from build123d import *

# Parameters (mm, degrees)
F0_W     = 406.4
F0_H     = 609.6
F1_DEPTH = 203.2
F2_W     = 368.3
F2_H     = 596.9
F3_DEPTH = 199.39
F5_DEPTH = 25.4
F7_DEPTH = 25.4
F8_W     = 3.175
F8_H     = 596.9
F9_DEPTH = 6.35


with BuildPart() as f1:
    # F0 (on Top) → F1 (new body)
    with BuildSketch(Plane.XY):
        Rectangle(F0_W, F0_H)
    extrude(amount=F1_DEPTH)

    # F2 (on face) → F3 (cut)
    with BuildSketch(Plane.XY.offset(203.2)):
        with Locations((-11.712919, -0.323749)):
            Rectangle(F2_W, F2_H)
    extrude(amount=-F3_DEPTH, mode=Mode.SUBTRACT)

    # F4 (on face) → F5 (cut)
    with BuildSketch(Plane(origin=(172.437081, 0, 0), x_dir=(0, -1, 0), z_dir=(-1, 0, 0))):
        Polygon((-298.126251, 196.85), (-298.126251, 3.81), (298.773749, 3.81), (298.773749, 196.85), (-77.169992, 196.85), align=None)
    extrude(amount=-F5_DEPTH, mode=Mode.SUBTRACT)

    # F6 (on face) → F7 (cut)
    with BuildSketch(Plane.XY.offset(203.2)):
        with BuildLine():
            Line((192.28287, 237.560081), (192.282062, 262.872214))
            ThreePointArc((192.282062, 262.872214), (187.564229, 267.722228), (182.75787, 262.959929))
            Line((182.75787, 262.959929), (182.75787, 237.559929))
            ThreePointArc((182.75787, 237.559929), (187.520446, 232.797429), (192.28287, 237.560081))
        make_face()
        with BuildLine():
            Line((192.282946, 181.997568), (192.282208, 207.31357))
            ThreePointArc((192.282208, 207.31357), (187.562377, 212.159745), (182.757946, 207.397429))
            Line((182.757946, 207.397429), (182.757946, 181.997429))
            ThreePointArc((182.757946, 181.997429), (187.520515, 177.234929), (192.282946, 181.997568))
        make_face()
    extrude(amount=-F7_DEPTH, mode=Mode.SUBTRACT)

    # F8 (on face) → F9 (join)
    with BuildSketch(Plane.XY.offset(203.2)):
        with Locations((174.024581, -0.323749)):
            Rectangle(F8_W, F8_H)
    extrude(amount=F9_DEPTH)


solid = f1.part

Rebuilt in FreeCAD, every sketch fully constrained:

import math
import FreeCAD as App
import Part
import Sketcher
from FreeCAD import Vector
Q = App.Units.Quantity

doc = App.newDocument("Part")
body = doc.addObject("PartDesign::Body", "Body")

# Sketch on XY plane
sketch1 = body.newObject("Sketcher::SketchObject", "Sketch")
sketch1.AttachmentSupport = (doc.getObject("XY_Plane"), [""])
sketch1.MapMode = "FlatFace"
sketch1.addGeometry(Part.LineSegment(Vector(-203, 305, 0), Vector(-203, -305, 0)), False)
sketch1.addGeometry(Part.LineSegment(Vector(-203, -305, 0), Vector(203, -305, 0)), False)
sketch1.addGeometry(Part.LineSegment(Vector(203, -305, 0), Vector(203, 305, 0)), False)
sketch1.addGeometry(Part.LineSegment(Vector(203, 305, 0), Vector(-203, 305, 0)), False)
sketch1.addConstraint(Sketcher.Constraint("Coincident", 0, 2, 1, 1))
sketch1.addConstraint(Sketcher.Constraint("Coincident", 1, 2, 2, 1))
sketch1.addConstraint(Sketcher.Constraint("Coincident", 2, 2, 3, 1))
sketch1.addConstraint(Sketcher.Constraint("Coincident", 3, 2, 0, 1))
sketch1.addConstraint(Sketcher.Constraint("Vertical", 0))
sketch1.addConstraint(Sketcher.Constraint("Horizontal", 1))
sketch1.addConstraint(Sketcher.Constraint("Vertical", 2))
sketch1.addConstraint(Sketcher.Constraint("Horizontal", 3))
sketch1.addConstraint(Sketcher.Constraint("Symmetric", 0, 2, 2, 2, -1, 1))
sketch1.addConstraint(Sketcher.Constraint("DistanceX", 1, 1, 1, 2, Q("16 in")))
sketch1.addConstraint(Sketcher.Constraint("DistanceY", 0, 2, 0, 1, Q("24 in")))
pad1 = body.newObject("PartDesign::Pad", "Pad")
pad1.Profile = sketch1
pad1.Length = Q("8 in")

# Sketch on XY plane
sketch2 = body.newObject("Sketcher::SketchObject", "Sketch001")
sketch2.AttachmentSupport = (doc.getObject("XY_Plane"), [""])
sketch2.MapMode = "FlatFace"
sketch2.AttachmentOffset = App.Placement(Vector(0, 0, 8 * 25.4), App.Rotation())
sketch2.addGeometry(Part.LineSegment(Vector(-196, 298, 0), Vector(-196, -299, 0)), False)
sketch2.addGeometry(Part.LineSegment(Vector(-196, -299, 0), Vector(172, -299, 0)), False)
sketch2.addGeometry(Part.LineSegment(Vector(172, -299, 0), Vector(172, 298, 0)), False)
sketch2.addGeometry(Part.LineSegment(Vector(172, 298, 0), Vector(-196, 298, 0)), False)
sketch2.addConstraint(Sketcher.Constraint("Coincident", 0, 2, 1, 1))
sketch2.addConstraint(Sketcher.Constraint("Coincident", 1, 2, 2, 1))
sketch2.addConstraint(Sketcher.Constraint("Coincident", 2, 2, 3, 1))
sketch2.addConstraint(Sketcher.Constraint("Coincident", 3, 2, 0, 1))
sketch2.addConstraint(Sketcher.Constraint("Vertical", 0))
sketch2.addConstraint(Sketcher.Constraint("Horizontal", 1))
sketch2.addConstraint(Sketcher.Constraint("Vertical", 2))
sketch2.addConstraint(Sketcher.Constraint("Horizontal", 3))
sketch2.addConstraint(Sketcher.Constraint("DistanceX", 1, 1, 1, 2, Q("14.5 in")))
sketch2.addConstraint(Sketcher.Constraint("DistanceY", 0, 2, 0, 1, Q("23.5 in")))
sketch2.addConstraint(Sketcher.Constraint("DistanceX", 0, 2, -1, 1, 195.862919))
sketch2.addConstraint(Sketcher.Constraint("DistanceY", 0, 2, -1, 1, 298.773749))
pocket1 = body.newObject("PartDesign::Pocket", "Pocket")
pocket1.Profile = sketch2
pocket1.Length = Q("7.85 in")

# Sketch on YZ plane
sketch3 = body.newObject("Sketcher::SketchObject", "Sketch002")
sketch3.AttachmentSupport = (doc.getObject("YZ_Plane"), [""])
sketch3.MapMode = "FlatFace"
sketch3.AttachmentOffset = App.Placement(Vector(0, 0, 172.437081), App.Rotation())
sketch3.addGeometry(Part.LineSegment(Vector(298, 197, 0), Vector(298, 4, 0)), False)
sketch3.addGeometry(Part.LineSegment(Vector(298, 4, 0), Vector(-299, 4, 0)), False)
sketch3.addGeometry(Part.LineSegment(Vector(-299, 4, 0), Vector(-299, 197, 0)), False)
sketch3.addGeometry(Part.LineSegment(Vector(-299, 197, 0), Vector(298, 197, 0)), False)
sketch3.addConstraint(Sketcher.Constraint("Coincident", 0, 2, 1, 1))
sketch3.addConstraint(Sketcher.Constraint("Coincident", 1, 2, 2, 1))
sketch3.addConstraint(Sketcher.Constraint("Coincident", 2, 2, 3, 1))
sketch3.addConstraint(Sketcher.Constraint("Coincident", 3, 2, 0, 1))
sketch3.addConstraint(Sketcher.Constraint("Vertical", 0))
sketch3.addConstraint(Sketcher.Constraint("Horizontal", 1))
sketch3.addConstraint(Sketcher.Constraint("Vertical", 2))
sketch3.addConstraint(Sketcher.Constraint("Horizontal", 3))
sketch3.addConstraint(Sketcher.Constraint("DistanceX", 1, 2, 1, 1, Q("23.5 in")))
sketch3.addConstraint(Sketcher.Constraint("DistanceY", 0, 2, 0, 1, Q("7.6 in")))
sketch3.addConstraint(Sketcher.Constraint("DistanceY", -1, 1, 0, 2, Q("0.15 in")))
sketch3.addConstraint(Sketcher.Constraint("DistanceX", -1, 1, 0, 2, 298.126251))
pocket2 = body.newObject("PartDesign::Pocket", "Pocket001")
pocket2.Profile = sketch3
pocket2.Length = Q("1 in")
pocket2.Reversed = True

# Sketch on XY plane
sketch4 = body.newObject("Sketcher::SketchObject", "Sketch003")
sketch4.AttachmentSupport = (doc.getObject("XY_Plane"), [""])
sketch4.MapMode = "FlatFace"
sketch4.AttachmentOffset = App.Placement(Vector(0, 0, 8 * 25.4), App.Rotation())
sketch4.addGeometry(Part.LineSegment(Vector(192.3, 237.6, 0), Vector(192.3, 262.9, 0)), False)
sketch4.addGeometry(Part.ArcOfCircle(Part.Circle(Vector(187.5, 263, 0), Vector(0, 0, 1), 4.8), math.radians(-1), math.radians(180)), False)
sketch4.addGeometry(Part.LineSegment(Vector(182.8, 263, 0), Vector(182.8, 237.6, 0)), False)
sketch4.addGeometry(Part.ArcOfCircle(Part.Circle(Vector(187.5, 237.6, 0), Vector(0, 0, 1), 4.8), math.radians(-180), math.radians(0)), False)
sketch4.addGeometry(Part.LineSegment(Vector(192.3, 182, 0), Vector(192.3, 207.3, 0)), False)
sketch4.addGeometry(Part.ArcOfCircle(Part.Circle(Vector(187.5, 207.4, 0), Vector(0, 0, 1), 4.8), math.radians(-1), math.radians(180)), False)
sketch4.addGeometry(Part.LineSegment(Vector(182.8, 207.4, 0), Vector(182.8, 182, 0)), False)
sketch4.addGeometry(Part.ArcOfCircle(Part.Circle(Vector(187.5, 182, 0), Vector(0, 0, 1), 4.8), math.radians(-180), math.radians(0)), False)
sketch4.addConstraint(Sketcher.Constraint("Coincident", 0, 2, 1, 1))
sketch4.addConstraint(Sketcher.Constraint("Tangent", 1, 2, 2, 1))
sketch4.addConstraint(Sketcher.Constraint("Tangent", 2, 2, 3, 1))
sketch4.addConstraint(Sketcher.Constraint("Tangent", 3, 2, 0, 1))
sketch4.addConstraint(Sketcher.Constraint("Coincident", 4, 2, 5, 1))
sketch4.addConstraint(Sketcher.Constraint("Tangent", 5, 2, 6, 1))
sketch4.addConstraint(Sketcher.Constraint("Tangent", 6, 2, 7, 1))
sketch4.addConstraint(Sketcher.Constraint("Tangent", 7, 2, 4, 1))
sketch4.addConstraint(Sketcher.Constraint("Vertical", 2))
sketch4.addConstraint(Sketcher.Constraint("Vertical", 6))
sketch4.addConstraint(Sketcher.Constraint("Equal", 1, 3))
sketch4.addConstraint(Sketcher.Constraint("Equal", 3, 5))
sketch4.addConstraint(Sketcher.Constraint("Equal", 5, 7))
sketch4.addConstraint(Sketcher.Constraint("Equal", 2, 6))
sketch4.addConstraint(Sketcher.Constraint("DistanceY", 2, 2, 2, 1, Q("1 in")))
sketch4.addConstraint(Sketcher.Constraint("Radius", 1, Q("0.1875 in")))
sketch4.addConstraint(Sketcher.Constraint("DistanceY", 5, 3, 3, 3, Q("1.1875 in")))
sketch4.addConstraint(Sketcher.Constraint("DistanceY", 7, 2, 4, 2, 25.316002))
sketch4.addConstraint(Sketcher.Constraint("DistanceX", -1, 1, 1, 3, 187.52037))
sketch4.addConstraint(Sketcher.Constraint("DistanceY", -1, 1, 1, 3, 262.95993))
sketch4.addConstraint(Sketcher.Constraint("DistanceX", -1, 1, 0, 2, 192.282062))
sketch4.addConstraint(Sketcher.Constraint("DistanceX", -1, 1, 4, 2, 192.282208))
pocket3 = body.newObject("PartDesign::Pocket", "Pocket002")
pocket3.Profile = sketch4
pocket3.Length = Q("1 in")

# Sketch on XY plane
sketch5 = body.newObject("Sketcher::SketchObject", "Sketch004")
sketch5.AttachmentSupport = (doc.getObject("XY_Plane"), [""])
sketch5.MapMode = "FlatFace"
sketch5.AttachmentOffset = App.Placement(Vector(0, 0, 8 * 25.4), App.Rotation())
sketch5.addGeometry(Part.LineSegment(Vector(172.4, 298.1, 0), Vector(172.4, -298.8, 0)), False)
sketch5.addGeometry(Part.LineSegment(Vector(172.4, -298.8, 0), Vector(175.6, -298.8, 0)), False)
sketch5.addGeometry(Part.LineSegment(Vector(175.6, -298.8, 0), Vector(175.6, 298.1, 0)), False)
sketch5.addGeometry(Part.LineSegment(Vector(175.6, 298.1, 0), Vector(172.4, 298.1, 0)), False)
sketch5.addConstraint(Sketcher.Constraint("Coincident", 0, 2, 1, 1))
sketch5.addConstraint(Sketcher.Constraint("Coincident", 1, 2, 2, 1))
sketch5.addConstraint(Sketcher.Constraint("Coincident", 2, 2, 3, 1))
sketch5.addConstraint(Sketcher.Constraint("Coincident", 3, 2, 0, 1))
sketch5.addConstraint(Sketcher.Constraint("Vertical", 0))
sketch5.addConstraint(Sketcher.Constraint("Horizontal", 1))
sketch5.addConstraint(Sketcher.Constraint("Vertical", 2))
sketch5.addConstraint(Sketcher.Constraint("Horizontal", 3))
sketch5.addConstraint(Sketcher.Constraint("DistanceY", 0, 2, 0, 1, Q("23.5 in")))
sketch5.addConstraint(Sketcher.Constraint("DistanceX", 1, 1, 1, 2, Q("0.125 in")))
sketch5.addConstraint(Sketcher.Constraint("DistanceX", -1, 1, 0, 2, 172.437081))
sketch5.addConstraint(Sketcher.Constraint("DistanceY", 0, 2, -1, 1, 298.773749))
pad2 = body.newObject("PartDesign::Pad", "Pad001")
pad2.Profile = sketch5
pad2.Length = Q("0.25 in")

doc.recompute()
